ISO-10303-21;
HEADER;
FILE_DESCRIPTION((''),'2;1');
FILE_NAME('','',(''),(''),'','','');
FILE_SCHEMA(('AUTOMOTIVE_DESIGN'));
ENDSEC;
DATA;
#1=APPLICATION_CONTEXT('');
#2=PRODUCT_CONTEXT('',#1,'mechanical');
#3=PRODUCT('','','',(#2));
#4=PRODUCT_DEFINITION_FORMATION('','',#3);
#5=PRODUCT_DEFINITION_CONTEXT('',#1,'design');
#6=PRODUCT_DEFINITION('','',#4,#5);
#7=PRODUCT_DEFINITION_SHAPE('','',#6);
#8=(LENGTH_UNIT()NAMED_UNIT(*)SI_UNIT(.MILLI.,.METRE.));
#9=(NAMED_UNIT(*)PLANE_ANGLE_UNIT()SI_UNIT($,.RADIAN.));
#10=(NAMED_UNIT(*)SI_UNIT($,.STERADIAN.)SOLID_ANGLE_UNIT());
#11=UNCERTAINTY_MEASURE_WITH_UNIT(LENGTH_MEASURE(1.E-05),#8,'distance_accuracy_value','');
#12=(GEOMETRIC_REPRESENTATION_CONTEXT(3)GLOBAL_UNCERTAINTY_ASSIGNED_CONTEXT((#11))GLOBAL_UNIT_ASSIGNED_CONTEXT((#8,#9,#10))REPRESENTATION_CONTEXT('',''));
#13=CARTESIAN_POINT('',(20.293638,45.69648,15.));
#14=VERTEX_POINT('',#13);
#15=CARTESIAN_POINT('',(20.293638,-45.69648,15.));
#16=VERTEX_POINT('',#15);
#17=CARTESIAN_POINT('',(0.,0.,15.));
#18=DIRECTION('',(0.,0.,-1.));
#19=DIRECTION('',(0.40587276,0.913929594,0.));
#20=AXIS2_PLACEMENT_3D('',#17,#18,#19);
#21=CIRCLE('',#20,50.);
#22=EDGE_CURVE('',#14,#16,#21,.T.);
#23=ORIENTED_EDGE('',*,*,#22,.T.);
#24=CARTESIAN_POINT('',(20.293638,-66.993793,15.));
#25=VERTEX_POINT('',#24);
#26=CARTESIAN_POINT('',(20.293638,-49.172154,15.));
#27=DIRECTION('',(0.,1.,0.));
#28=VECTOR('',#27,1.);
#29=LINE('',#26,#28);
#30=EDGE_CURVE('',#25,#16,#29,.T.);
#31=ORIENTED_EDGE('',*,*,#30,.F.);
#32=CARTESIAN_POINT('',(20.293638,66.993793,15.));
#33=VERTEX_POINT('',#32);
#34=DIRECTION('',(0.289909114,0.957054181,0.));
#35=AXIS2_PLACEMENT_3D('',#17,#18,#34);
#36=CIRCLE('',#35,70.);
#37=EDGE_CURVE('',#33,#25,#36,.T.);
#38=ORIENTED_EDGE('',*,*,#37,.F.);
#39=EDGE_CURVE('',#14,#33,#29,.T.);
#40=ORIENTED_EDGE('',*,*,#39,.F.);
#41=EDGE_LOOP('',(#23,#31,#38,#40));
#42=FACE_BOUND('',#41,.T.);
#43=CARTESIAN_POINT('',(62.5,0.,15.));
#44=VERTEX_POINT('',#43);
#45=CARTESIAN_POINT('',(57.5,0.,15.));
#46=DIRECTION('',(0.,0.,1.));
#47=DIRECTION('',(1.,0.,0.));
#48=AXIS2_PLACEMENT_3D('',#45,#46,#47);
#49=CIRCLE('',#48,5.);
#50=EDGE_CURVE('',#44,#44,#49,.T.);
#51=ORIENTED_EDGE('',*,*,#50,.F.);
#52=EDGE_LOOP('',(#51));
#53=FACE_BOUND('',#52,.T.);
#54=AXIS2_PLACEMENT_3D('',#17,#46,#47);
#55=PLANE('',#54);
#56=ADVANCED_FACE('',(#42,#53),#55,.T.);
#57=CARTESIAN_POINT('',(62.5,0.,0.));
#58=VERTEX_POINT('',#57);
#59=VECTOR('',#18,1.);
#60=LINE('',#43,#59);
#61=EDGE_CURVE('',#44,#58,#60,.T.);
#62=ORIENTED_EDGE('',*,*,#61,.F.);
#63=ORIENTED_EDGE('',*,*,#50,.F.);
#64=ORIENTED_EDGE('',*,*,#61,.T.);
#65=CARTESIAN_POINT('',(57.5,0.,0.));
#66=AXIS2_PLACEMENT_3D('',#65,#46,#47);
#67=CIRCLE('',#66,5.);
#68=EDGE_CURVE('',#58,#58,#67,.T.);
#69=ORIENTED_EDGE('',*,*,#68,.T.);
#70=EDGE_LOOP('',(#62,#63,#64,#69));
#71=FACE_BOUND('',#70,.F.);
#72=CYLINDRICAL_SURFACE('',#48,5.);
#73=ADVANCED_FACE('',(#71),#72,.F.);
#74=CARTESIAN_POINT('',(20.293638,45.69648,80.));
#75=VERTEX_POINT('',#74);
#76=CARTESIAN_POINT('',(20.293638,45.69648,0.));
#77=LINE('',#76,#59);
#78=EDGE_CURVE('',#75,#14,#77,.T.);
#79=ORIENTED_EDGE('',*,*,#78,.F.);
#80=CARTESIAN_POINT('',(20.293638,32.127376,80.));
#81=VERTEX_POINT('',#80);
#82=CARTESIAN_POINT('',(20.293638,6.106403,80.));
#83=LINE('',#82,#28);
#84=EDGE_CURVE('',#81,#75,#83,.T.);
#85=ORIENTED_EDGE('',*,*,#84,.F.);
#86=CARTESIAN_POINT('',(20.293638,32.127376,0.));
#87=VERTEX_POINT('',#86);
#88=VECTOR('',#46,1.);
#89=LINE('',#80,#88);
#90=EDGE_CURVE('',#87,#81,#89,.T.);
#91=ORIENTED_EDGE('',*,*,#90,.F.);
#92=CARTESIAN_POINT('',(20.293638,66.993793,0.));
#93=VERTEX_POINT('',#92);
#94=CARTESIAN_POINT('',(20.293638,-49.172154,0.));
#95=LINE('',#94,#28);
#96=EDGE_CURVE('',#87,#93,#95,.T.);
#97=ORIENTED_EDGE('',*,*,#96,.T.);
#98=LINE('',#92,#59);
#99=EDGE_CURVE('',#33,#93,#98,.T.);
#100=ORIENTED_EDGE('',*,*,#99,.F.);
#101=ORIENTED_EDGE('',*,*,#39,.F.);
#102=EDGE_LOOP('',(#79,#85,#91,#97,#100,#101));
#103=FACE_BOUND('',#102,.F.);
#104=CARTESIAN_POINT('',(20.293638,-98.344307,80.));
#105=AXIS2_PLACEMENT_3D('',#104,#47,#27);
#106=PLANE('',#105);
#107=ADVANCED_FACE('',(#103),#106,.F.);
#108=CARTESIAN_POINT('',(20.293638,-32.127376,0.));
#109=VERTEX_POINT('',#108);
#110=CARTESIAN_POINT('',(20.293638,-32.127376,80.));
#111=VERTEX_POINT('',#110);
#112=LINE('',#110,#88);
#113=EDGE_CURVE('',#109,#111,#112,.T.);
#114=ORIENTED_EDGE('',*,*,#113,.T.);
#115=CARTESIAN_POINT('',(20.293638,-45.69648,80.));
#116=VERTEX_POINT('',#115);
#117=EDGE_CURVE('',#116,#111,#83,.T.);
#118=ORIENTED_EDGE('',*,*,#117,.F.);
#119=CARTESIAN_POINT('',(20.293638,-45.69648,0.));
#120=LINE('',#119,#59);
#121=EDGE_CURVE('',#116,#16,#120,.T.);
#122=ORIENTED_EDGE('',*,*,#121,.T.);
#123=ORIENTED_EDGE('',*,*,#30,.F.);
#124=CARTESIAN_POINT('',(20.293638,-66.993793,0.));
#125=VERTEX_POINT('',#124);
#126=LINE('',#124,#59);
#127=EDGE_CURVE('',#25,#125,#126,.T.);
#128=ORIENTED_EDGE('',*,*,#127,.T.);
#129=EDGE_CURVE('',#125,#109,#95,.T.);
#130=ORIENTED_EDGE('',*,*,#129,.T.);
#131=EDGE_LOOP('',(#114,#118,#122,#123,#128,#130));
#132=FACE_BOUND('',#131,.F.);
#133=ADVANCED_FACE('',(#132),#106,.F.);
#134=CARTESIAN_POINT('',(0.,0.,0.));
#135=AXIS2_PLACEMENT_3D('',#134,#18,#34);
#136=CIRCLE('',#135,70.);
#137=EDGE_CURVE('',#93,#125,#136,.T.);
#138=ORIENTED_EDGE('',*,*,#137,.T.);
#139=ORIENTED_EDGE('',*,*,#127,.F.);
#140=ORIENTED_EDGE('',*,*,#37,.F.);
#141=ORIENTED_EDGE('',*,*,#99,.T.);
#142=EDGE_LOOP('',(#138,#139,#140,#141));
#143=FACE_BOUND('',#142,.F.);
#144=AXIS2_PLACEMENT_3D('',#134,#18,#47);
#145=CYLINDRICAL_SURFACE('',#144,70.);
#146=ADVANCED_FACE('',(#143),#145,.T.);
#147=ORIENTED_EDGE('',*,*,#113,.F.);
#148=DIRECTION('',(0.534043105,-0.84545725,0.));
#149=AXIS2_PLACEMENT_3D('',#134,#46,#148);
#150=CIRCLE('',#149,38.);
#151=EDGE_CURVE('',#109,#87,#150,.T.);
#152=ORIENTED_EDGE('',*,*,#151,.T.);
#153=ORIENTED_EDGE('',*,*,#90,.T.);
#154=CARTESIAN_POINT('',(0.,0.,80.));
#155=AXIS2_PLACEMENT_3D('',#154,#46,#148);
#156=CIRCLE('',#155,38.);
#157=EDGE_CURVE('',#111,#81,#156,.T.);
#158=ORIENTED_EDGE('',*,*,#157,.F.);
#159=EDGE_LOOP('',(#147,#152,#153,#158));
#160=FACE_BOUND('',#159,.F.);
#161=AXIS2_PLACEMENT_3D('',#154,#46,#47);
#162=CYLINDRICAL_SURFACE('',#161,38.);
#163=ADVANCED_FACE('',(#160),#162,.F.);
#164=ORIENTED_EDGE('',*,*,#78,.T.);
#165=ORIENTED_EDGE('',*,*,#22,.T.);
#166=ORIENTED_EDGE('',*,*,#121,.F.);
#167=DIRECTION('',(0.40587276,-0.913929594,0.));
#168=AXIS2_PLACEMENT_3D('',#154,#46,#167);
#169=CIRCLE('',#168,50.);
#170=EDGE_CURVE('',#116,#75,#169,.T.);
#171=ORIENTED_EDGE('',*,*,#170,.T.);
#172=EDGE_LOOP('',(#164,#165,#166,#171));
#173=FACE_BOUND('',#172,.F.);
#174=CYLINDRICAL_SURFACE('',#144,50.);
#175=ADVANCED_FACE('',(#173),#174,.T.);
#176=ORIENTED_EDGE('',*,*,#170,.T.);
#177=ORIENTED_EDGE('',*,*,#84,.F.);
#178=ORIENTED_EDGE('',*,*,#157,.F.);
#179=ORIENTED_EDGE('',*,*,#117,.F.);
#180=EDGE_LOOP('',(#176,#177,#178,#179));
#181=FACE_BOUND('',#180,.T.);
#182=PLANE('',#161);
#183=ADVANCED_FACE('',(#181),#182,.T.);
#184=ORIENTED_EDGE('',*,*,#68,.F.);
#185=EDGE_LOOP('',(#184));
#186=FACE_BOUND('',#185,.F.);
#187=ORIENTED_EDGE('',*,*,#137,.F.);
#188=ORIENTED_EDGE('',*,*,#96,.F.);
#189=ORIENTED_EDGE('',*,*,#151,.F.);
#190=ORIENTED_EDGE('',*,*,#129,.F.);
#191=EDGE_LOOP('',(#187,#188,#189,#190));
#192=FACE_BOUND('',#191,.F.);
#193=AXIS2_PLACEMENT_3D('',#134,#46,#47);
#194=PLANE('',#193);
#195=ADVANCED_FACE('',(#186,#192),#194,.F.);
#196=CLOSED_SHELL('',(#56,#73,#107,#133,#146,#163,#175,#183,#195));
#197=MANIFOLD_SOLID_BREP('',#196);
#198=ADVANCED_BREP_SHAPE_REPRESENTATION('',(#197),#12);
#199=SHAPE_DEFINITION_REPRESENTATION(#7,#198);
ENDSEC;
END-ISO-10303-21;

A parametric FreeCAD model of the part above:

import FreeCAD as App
import Part
import Sketcher
Q = App.Units.Quantity


def add_polygon(sketch, points):
    """Adds a closed chain of lines whose ends are joined by coincident constraints."""
    first, n = sketch.GeometryCount, len(points)
    for a, b in zip(points, points[1:] + points[:1]):
        sketch.addGeometry(Part.LineSegment(App.Vector(*a, 0), App.Vector(*b, 0)), False)
    for i in range(n):
        sketch.addConstraint(Sketcher.Constraint("Coincident", first + i, 2, first + (i + 1) % n, 1))

doc = App.newDocument("Part")
params = doc.addObject("Spreadsheet::Sheet", "Params")
for row, (alias, value) in enumerate([
    ("sketch1_diameter", "140 mm"),
    ("pad1_length", "15 mm"),
    ("sketch2_diameter", "100 mm"),
    ("pad2_length", "80 mm"),
    ("sketch3_diameter", "76 mm"),
    ("pocket1_length", "150 mm"),
    ("sketch4_diameter", "10 mm"),
    ("pocket2_length", "100 mm"),
    ("pocket3_length", "150 mm"),
], start=1):
    params.set(f"A{row}", alias)
    params.set(f"B{row}", "=" + value)
    params.setAlias(f"B{row}", alias)

body = doc.addObject("PartDesign::Body", "Body")

sketch1 = doc.addObject("Sketcher::SketchObject", "Sketch")
body.addObject(sketch1)
sketch1.AttachmentSupport = (doc.XY_Plane, [""])
sketch1.MapMode = "FlatFace"
sketch1.addGeometry(Part.Circle(App.Vector(0, 0, 0), App.Vector(0, 0, 1), 70), False)
sketch1.addConstraint(Sketcher.Constraint("Coincident", 0, 3, -1, 1))
sketch1.addConstraint(Sketcher.Constraint("Diameter", 0, Q("140 mm")))
sketch1.setExpression("Constraints[1]", "Params.sketch1_diameter")
pad1 = doc.addObject("PartDesign::Pad", "Pad")
body.addObject(pad1)
pad1.Profile = sketch1
pad1.setExpression("Length", "Params.pad1_length")

sketch2 = doc.addObject("Sketcher::SketchObject", "Sketch001")
body.addObject(sketch2)
sketch2.AttachmentSupport = (doc.XY_Plane, [""])
sketch2.MapMode = "FlatFace"
sketch2.addGeometry(Part.Circle(App.Vector(0, 0, 0), App.Vector(0, 0, 1), 50), False)
sketch2.addConstraint(Sketcher.Constraint("Coincident", 0, 3, -1, 1))
sketch2.addConstraint(Sketcher.Constraint("Diameter", 0, Q("100 mm")))
sketch2.setExpression("Constraints[1]", "Params.sketch2_diameter")
pad2 = doc.addObject("PartDesign::Pad", "Pad001")
body.addObject(pad2)
pad2.Profile = sketch2
pad2.setExpression("Length", "Params.pad2_length")

sketch3 = doc.addObject("Sketcher::SketchObject", "Sketch002")
body.addObject(sketch3)
sketch3.AttachmentSupport = (doc.XY_Plane, [""])
sketch3.MapMode = "FlatFace"
sketch3.AttachmentOffset = App.Placement(App.Vector(0, 0, 80), App.Rotation())
sketch3.addGeometry(Part.Circle(App.Vector(0, 0, 0), App.Vector(0, 0, 1), 38), False)
sketch3.addConstraint(Sketcher.Constraint("Coincident", 0, 3, -1, 1))
sketch3.addConstraint(Sketcher.Constraint("Diameter", 0, Q("76 mm")))
sketch3.setExpression("Constraints[1]", "Params.sketch3_diameter")
pocket1 = doc.addObject("PartDesign::Pocket", "Pocket")
body.addObject(pocket1)
pocket1.Profile = sketch3
pocket1.setExpression("Length", "Params.pocket1_length")

sketch4 = doc.addObject("Sketcher::SketchObject", "Sketch003")
body.addObject(sketch4)
sketch4.AttachmentSupport = (doc.XY_Plane, [""])
sketch4.MapMode = "FlatFace"
sketch4.AttachmentOffset = App.Placement(App.Vector(0, 0, 15), App.Rotation())
sketch4.addGeometry(Part.Circle(App.Vector(57.5, 0, 0), App.Vector(0, 0, 1), 5), False)
sketch4.addConstraint(Sketcher.Constraint("PointOnObject", 0, 3, -1))
sketch4.addConstraint(Sketcher.Constraint("Diameter", 0, Q("10 mm")))
sketch4.addConstraint(Sketcher.Constraint("DistanceX", -1, 1, 0, 3, Q("57.5 mm")))
sketch4.setExpression("Constraints[1]", "Params.sketch4_diameter")
pocket2 = doc.addObject("PartDesign::Pocket", "Pocket001")
body.addObject(pocket2)
pocket2.Profile = sketch4
pocket2.setExpression("Length", "Params.pocket2_length")

sketch5 = doc.addObject("Sketcher::SketchObject", "Sketch004")
body.addObject(sketch5)
sketch5.AttachmentSupport = (doc.XY_Plane, [""])
sketch5.MapMode = "FlatFace"
sketch5.AttachmentOffset = App.Placement(App.Vector(0, 0, 80), App.Rotation())
add_polygon(sketch5, [(-92.752014, 110.557113), (-92.752014, -98.344307), (20.293638, -98.344307), (20.293638, 110.557113)])
sketch5.addConstraint(Sketcher.Constraint("Vertical", 0))
sketch5.addConstraint(Sketcher.Constraint("Horizontal", 1))
sketch5.addConstraint(Sketcher.Constraint("Vertical", 2))
sketch5.addConstraint(Sketcher.Constraint("Horizontal", 3))
sketch5.addConstraint(Sketcher.Constraint("DistanceY", 0, 2, 0, 1, Q("208.901421 mm")))
sketch5.addConstraint(Sketcher.Constraint("DistanceX", 1, 1, 1, 2, Q("113.045652 mm")))
sketch5.addConstraint(Sketcher.Constraint("DistanceX", -1, 1, 1, 2, Q("20.293638 mm")))
sketch5.addConstraint(Sketcher.Constraint("DistanceY", 0, 2, -1, 1, Q("98.344307 mm")))
pocket3 = doc.addObject("PartDesign::Pocket", "Pocket002")
body.addObject(pocket3)
pocket3.Profile = sketch5
pocket3.setExpression("Length", "Params.pocket3_length")

doc.recompute()
